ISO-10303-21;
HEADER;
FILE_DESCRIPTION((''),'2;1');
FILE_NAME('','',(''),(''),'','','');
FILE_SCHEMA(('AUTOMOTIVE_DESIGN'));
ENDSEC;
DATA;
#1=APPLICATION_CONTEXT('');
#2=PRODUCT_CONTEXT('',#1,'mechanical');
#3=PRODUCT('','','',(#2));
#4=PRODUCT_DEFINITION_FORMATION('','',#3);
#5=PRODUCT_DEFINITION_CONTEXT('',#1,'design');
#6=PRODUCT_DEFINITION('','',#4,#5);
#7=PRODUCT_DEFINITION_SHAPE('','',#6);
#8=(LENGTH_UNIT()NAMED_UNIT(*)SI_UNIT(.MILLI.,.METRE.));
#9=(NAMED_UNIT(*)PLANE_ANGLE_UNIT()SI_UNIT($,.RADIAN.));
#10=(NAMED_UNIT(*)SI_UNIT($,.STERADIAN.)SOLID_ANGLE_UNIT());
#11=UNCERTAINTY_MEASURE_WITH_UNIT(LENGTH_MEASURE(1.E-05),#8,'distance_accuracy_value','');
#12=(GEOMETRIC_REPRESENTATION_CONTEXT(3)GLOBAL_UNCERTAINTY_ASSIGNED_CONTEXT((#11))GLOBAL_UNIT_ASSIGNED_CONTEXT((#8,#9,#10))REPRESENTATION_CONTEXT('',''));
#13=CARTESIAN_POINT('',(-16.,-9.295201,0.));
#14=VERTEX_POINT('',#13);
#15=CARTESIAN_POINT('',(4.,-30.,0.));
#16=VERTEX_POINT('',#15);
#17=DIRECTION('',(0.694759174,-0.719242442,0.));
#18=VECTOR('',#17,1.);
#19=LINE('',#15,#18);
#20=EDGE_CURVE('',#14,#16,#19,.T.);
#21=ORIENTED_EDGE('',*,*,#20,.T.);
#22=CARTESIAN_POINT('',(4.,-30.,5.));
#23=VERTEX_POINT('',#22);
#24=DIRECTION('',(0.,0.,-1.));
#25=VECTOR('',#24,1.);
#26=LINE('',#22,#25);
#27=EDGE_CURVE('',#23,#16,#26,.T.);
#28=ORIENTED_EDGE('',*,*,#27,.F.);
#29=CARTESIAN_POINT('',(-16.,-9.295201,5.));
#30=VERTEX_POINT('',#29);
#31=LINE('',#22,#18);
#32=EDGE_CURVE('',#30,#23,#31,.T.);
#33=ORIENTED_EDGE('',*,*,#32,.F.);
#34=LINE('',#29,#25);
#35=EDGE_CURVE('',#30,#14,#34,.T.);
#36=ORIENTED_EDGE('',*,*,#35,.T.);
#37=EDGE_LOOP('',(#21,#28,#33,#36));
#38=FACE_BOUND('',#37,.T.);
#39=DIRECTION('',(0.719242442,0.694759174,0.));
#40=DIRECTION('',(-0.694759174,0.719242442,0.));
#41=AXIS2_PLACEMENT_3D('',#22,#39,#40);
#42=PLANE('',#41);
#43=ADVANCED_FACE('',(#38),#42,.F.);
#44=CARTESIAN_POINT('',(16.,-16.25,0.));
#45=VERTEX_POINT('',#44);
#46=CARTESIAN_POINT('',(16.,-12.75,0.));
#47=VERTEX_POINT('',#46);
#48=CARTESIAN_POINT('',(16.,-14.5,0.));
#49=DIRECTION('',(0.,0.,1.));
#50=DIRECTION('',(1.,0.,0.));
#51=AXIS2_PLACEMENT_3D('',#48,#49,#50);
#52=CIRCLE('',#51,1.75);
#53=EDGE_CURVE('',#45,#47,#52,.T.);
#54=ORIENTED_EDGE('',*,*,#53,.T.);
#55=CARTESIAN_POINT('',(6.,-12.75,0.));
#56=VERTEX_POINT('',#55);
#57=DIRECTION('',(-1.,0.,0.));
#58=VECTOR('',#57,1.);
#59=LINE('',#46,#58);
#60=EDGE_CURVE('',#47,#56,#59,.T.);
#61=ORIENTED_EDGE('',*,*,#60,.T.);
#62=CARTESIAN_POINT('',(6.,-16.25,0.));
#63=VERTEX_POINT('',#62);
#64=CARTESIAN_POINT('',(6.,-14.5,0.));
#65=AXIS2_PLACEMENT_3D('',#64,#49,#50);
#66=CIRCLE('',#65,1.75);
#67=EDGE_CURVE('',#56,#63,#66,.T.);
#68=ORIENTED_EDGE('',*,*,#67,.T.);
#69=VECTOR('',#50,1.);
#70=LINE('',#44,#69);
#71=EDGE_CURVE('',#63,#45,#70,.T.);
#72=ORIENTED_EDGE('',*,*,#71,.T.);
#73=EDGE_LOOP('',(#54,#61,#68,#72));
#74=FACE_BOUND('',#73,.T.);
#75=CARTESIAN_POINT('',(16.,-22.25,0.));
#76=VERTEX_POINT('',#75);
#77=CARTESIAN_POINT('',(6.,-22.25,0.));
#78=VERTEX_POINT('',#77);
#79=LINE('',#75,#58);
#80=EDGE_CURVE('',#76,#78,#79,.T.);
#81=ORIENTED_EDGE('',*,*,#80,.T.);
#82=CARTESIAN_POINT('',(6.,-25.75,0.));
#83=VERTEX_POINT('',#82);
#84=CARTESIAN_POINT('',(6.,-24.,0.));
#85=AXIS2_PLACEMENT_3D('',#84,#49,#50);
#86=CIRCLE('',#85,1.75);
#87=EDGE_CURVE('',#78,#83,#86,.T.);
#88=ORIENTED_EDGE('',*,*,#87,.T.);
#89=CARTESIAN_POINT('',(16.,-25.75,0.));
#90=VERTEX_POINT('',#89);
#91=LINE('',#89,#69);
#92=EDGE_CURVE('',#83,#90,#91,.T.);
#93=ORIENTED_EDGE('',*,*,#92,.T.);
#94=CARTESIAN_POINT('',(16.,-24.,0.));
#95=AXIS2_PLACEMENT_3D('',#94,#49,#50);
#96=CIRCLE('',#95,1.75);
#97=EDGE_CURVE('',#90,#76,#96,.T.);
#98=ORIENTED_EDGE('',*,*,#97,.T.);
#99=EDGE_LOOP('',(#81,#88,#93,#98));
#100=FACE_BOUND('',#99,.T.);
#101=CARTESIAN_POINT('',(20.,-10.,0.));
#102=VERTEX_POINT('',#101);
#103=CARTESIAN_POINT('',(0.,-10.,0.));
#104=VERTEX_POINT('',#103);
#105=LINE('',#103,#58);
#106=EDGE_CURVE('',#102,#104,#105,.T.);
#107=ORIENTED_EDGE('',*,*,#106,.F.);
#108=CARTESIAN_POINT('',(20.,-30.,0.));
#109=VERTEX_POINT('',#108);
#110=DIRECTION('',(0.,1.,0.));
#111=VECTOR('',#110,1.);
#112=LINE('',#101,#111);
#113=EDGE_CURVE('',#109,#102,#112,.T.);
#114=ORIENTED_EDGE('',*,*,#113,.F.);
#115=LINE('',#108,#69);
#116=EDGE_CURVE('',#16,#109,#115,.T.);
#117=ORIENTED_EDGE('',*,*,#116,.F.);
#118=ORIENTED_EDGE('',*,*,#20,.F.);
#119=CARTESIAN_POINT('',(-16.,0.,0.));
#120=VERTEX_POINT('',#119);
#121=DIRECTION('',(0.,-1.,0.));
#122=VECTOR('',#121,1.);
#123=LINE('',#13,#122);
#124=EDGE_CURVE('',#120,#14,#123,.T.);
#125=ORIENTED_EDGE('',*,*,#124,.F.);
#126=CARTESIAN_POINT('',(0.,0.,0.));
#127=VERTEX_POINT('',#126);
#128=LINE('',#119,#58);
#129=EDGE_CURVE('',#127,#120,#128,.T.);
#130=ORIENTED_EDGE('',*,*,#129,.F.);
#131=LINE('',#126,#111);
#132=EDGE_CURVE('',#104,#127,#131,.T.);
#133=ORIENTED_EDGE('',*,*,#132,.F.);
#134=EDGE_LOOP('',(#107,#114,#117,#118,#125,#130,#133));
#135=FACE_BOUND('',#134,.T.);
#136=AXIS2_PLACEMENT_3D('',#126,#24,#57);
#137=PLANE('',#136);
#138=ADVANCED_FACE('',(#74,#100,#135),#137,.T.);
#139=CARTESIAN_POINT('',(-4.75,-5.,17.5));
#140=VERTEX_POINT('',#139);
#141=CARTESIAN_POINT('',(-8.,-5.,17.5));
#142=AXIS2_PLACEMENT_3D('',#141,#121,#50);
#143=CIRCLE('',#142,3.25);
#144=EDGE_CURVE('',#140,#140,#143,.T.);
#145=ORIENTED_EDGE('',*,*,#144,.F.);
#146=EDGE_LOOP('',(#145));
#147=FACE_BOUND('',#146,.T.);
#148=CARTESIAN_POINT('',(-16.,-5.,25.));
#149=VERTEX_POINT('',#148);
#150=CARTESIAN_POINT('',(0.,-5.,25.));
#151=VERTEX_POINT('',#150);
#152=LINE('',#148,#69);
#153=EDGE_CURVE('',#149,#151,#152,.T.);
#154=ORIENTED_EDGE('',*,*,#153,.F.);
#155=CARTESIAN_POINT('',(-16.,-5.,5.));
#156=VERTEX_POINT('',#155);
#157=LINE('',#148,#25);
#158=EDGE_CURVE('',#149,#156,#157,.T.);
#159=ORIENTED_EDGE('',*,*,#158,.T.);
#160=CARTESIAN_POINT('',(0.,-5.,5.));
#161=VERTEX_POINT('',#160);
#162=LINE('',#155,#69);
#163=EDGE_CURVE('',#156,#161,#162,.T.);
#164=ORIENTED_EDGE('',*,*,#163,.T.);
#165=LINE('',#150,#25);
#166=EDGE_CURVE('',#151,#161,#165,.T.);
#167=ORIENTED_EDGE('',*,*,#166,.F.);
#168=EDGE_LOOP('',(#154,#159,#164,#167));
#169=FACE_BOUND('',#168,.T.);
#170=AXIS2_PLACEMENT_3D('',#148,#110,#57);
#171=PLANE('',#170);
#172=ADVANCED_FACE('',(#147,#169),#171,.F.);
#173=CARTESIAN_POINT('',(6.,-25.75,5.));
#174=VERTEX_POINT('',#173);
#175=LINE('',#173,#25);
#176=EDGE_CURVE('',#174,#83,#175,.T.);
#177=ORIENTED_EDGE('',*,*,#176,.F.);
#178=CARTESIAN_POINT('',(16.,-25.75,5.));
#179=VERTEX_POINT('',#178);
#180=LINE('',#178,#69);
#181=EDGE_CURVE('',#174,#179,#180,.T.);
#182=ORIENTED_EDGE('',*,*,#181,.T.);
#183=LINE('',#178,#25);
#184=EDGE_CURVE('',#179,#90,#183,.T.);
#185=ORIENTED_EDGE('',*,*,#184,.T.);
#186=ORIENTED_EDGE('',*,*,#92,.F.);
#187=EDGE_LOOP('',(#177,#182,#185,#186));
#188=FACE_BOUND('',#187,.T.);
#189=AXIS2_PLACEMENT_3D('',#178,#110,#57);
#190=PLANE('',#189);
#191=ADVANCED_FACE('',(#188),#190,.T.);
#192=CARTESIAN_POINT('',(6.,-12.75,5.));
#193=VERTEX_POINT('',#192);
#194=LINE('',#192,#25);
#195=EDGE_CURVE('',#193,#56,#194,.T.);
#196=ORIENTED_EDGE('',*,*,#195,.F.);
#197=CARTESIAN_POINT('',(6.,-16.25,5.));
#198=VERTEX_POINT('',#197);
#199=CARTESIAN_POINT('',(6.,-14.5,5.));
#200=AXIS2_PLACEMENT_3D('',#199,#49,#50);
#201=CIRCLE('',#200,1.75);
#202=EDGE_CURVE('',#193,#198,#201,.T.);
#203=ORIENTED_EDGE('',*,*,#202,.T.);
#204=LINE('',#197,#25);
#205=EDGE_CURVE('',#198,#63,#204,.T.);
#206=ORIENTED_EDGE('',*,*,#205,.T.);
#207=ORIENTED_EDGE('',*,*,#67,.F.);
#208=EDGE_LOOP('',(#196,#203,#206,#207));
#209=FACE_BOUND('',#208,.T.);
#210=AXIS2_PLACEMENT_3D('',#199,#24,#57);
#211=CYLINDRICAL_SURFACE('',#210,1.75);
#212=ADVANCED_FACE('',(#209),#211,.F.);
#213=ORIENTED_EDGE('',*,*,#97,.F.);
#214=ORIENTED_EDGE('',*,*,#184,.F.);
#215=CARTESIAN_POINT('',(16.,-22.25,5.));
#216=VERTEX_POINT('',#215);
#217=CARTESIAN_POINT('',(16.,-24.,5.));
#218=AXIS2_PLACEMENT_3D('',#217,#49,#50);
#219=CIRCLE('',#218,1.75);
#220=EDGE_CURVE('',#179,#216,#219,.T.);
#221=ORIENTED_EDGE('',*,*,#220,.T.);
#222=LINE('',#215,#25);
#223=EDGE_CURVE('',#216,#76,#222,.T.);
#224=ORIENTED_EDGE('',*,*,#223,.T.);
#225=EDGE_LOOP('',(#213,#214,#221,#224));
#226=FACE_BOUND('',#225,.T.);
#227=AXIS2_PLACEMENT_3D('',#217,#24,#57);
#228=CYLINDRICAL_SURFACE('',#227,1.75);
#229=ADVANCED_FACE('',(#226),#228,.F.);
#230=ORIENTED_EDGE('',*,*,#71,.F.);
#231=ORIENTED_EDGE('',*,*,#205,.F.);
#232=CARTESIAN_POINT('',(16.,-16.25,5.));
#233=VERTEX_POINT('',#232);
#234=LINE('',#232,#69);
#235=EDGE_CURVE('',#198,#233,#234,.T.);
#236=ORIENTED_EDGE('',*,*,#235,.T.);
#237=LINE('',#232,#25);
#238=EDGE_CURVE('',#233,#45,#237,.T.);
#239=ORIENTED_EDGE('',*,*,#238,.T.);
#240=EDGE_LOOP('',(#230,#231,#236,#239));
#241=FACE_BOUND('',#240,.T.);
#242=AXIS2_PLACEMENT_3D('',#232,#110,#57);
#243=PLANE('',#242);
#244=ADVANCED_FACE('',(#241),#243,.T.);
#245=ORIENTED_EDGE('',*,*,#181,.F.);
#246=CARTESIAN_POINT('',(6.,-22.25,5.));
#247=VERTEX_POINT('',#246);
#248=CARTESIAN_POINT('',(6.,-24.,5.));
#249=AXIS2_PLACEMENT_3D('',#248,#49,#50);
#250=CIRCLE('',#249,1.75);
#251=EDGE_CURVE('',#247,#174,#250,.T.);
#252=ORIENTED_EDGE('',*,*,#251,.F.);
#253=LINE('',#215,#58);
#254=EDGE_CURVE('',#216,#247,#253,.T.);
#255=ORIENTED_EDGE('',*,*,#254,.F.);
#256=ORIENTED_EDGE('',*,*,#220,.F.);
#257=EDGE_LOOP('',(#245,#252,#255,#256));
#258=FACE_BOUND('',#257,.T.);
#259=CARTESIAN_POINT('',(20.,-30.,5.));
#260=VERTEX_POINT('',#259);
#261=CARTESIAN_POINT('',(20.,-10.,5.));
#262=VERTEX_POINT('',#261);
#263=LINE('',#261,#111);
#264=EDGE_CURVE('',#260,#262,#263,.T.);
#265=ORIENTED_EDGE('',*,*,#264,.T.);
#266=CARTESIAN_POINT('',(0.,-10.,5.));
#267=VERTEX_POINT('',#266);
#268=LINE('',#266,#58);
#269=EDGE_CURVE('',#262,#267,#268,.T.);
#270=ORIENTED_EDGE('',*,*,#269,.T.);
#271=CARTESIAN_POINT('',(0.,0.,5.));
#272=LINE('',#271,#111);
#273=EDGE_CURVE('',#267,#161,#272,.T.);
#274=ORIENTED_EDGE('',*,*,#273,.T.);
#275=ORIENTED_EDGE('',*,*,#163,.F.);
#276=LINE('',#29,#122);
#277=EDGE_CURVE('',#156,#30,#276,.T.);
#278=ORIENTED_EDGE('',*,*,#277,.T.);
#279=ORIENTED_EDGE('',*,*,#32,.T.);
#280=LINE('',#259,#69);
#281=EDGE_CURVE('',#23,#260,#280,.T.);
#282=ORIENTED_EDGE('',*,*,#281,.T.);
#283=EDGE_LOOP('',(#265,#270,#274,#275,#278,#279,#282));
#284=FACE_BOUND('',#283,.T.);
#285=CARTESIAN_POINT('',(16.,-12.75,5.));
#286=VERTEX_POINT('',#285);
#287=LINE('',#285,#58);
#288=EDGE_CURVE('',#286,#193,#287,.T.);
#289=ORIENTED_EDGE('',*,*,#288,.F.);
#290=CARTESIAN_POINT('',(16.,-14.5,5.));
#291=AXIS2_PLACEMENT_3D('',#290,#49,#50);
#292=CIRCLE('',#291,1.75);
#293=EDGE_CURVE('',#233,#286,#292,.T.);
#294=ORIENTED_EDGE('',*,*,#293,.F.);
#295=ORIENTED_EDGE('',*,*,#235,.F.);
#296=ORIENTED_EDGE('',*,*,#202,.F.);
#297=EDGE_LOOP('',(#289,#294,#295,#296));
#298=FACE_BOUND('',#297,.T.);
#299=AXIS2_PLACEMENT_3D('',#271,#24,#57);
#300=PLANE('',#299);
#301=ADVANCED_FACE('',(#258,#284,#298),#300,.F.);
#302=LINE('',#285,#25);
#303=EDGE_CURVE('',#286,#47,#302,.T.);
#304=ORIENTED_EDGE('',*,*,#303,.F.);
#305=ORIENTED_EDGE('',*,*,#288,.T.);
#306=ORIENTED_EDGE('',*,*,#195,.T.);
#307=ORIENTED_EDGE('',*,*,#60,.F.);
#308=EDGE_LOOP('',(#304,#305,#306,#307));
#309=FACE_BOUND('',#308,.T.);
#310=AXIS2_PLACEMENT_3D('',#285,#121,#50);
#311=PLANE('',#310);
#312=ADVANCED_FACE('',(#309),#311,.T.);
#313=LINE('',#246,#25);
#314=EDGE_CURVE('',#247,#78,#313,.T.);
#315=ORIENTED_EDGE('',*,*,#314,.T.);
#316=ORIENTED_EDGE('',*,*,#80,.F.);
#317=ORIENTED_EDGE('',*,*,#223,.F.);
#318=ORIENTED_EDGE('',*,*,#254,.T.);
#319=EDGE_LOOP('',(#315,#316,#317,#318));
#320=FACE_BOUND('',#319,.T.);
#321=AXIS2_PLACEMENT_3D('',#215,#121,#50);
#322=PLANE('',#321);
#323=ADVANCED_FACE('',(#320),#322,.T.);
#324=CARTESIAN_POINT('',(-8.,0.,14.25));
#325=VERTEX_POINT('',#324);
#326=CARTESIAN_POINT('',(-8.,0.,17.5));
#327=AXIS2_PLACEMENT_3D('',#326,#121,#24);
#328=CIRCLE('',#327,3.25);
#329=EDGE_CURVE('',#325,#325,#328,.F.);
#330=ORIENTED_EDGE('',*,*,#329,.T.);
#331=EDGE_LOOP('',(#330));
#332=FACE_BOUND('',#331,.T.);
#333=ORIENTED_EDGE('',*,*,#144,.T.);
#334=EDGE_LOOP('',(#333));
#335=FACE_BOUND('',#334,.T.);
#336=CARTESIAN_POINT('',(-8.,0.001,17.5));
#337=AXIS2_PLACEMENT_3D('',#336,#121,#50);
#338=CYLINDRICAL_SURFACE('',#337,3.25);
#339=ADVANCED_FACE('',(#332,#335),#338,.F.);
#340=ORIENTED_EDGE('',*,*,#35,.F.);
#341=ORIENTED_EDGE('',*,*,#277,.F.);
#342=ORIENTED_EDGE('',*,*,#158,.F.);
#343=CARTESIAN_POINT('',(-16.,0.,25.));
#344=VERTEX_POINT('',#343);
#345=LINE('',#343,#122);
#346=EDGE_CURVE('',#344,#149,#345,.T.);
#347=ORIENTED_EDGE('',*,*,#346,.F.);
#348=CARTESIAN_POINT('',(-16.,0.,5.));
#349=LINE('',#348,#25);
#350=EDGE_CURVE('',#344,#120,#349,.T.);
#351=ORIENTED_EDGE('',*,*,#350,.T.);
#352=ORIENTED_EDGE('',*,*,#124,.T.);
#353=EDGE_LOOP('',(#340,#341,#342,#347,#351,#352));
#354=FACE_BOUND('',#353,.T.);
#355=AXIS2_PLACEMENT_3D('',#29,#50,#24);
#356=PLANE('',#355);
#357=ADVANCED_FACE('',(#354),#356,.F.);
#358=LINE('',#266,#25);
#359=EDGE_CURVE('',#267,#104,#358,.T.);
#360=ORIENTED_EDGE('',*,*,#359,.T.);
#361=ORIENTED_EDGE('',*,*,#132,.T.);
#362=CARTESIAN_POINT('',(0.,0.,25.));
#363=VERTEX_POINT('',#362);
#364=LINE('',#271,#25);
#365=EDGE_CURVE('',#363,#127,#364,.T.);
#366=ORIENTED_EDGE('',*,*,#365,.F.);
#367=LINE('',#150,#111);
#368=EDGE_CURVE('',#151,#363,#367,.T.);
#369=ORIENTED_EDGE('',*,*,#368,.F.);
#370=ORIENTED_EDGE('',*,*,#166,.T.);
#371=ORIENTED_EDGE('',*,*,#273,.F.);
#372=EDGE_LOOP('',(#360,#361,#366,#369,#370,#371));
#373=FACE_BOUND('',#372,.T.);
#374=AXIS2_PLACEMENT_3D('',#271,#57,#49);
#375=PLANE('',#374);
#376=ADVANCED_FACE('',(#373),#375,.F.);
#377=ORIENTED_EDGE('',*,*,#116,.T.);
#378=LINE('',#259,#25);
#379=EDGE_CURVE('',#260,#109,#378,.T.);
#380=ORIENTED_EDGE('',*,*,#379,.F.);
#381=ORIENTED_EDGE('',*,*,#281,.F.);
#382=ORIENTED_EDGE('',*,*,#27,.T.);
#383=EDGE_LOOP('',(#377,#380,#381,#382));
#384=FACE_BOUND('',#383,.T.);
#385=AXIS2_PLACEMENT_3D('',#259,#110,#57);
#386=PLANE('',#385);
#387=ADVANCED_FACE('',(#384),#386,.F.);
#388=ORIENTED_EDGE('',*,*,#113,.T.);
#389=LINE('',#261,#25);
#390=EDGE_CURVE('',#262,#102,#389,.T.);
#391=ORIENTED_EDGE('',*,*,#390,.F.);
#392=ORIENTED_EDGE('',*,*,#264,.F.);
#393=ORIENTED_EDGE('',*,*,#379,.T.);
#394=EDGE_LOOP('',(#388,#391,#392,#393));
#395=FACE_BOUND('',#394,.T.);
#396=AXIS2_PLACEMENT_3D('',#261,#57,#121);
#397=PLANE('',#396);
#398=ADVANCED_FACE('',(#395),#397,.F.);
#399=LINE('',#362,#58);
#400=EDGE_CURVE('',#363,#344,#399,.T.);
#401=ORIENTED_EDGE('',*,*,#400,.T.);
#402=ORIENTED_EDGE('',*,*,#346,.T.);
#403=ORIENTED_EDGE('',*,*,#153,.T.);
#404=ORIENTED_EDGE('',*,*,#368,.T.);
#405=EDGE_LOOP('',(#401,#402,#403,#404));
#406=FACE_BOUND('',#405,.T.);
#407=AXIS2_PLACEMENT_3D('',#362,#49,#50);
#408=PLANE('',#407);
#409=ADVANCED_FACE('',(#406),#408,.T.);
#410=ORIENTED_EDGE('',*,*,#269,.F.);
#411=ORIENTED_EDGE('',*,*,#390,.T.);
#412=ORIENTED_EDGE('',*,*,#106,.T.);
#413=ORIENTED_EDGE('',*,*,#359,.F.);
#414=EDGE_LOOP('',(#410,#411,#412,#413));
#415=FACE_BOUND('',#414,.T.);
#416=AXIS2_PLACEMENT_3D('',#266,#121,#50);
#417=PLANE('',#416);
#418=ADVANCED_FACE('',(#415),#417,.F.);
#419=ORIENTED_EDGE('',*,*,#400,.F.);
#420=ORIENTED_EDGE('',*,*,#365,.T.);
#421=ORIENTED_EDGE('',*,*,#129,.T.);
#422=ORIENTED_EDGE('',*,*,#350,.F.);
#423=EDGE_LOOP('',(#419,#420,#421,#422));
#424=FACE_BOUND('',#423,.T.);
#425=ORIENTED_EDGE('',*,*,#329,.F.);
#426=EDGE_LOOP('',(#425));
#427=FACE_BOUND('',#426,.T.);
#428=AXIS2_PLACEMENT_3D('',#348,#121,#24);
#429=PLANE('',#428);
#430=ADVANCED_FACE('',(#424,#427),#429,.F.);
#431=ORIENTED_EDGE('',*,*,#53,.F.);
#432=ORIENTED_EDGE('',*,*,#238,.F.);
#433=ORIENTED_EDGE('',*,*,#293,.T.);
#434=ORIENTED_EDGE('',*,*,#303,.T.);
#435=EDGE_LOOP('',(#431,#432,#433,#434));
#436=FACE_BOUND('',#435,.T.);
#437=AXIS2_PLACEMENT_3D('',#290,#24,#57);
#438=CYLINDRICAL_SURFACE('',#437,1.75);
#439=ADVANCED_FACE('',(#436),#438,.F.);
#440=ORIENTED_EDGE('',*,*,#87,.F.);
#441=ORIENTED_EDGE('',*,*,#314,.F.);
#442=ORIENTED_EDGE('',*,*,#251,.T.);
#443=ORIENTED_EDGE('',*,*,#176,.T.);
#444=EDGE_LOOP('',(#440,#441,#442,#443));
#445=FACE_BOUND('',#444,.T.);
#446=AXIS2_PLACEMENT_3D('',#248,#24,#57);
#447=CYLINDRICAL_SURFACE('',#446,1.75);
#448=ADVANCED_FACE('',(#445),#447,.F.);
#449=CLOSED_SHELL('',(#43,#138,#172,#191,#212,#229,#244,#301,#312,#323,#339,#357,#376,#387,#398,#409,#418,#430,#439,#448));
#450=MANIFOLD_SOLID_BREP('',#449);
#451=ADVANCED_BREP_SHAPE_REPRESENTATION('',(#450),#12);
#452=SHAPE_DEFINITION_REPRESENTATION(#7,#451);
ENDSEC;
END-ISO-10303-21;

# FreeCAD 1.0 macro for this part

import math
import FreeCAD as App
import Part
import Sketcher

V = App.Vector
Q = App.Units.Quantity


def add_polygon(sketch, points):
    """Adds a closed chain of lines whose ends are joined by coincident constraints."""
    first, n = sketch.GeometryCount, len(points)
    for a, b in zip(points, points[1:] + points[:1]):
        sketch.addGeometry(Part.LineSegment(App.Vector(*a, 0), App.Vector(*b, 0)), False)
    for i in range(n):
        sketch.addConstraint(Sketcher.Constraint("Coincident", first + i, 2, first + (i + 1) % n, 1))

doc = App.newDocument("Part")
body = doc.addObject("PartDesign::Body", "Body")

sketch1 = body.newObject("Sketcher::SketchObject", "Sketch")
sketch1.AttachmentSupport = (doc.getObject("XY_Plane"), [""])
sketch1.MapMode = "FlatFace"
add_polygon(sketch1, [(0, 0), (-16, 0), (-16, -9.3), (4, -30), (20, -30), (20, -10), (0, -10)])
sketch1.addGeometry(Part.ArcOfCircle(Part.Circle(V(16, -24, 0), V(0, 0, 1), 1.8), math.radians(-90), math.radians(90)), False)
sketch1.addGeometry(Part.LineSegment(V(16, -25.8, 0), V(6, -25.8, 0)), False)
sketch1.addGeometry(Part.ArcOfCircle(Part.Circle(V(6, -24, 0), V(0, 0, 1), 1.8), math.radians(90), math.radians(270)), False)
sketch1.addGeometry(Part.LineSegment(V(6, -22.2, 0), V(16, -22.2, 0)), False)
sketch1.addGeometry(Part.ArcOfCircle(Part.Circle(V(16, -14.5, 0), V(0, 0, 1), 1.8), math.radians(-90), math.radians(90)), False)
sketch1.addGeometry(Part.LineSegment(V(16, -16.2, 0), V(6, -16.2, 0)), False)
sketch1.addGeometry(Part.ArcOfCircle(Part.Circle(V(6, -14.5, 0), V(0, 0, 1), 1.8), math.radians(90), math.radians(270)), False)
sketch1.addGeometry(Part.LineSegment(V(6, -12.8, 0), V(16, -12.8, 0)), False)
sketch1.addConstraint(Sketcher.Constraint("Tangent", 7, 1, 8, 1))
sketch1.addConstraint(Sketcher.Constraint("Tangent", 8, 2, 9, 2))
sketch1.addConstraint(Sketcher.Constraint("Tangent", 9, 1, 10, 1))
sketch1.addConstraint(Sketcher.Constraint("Tangent", 10, 2, 7, 2))
sketch1.addConstraint(Sketcher.Constraint("Tangent", 11, 1, 12, 1))
sketch1.addConstraint(Sketcher.Constraint("Tangent", 12, 2, 13, 2))
sketch1.addConstraint(Sketcher.Constraint("Tangent", 13, 1, 14, 1))
sketch1.addConstraint(Sketcher.Constraint("Tangent", 14, 2, 11, 2))
sketch1.addConstraint(Sketcher.Constraint("Horizontal", 0))
sketch1.addConstraint(Sketcher.Constraint("Vertical", 1))
sketch1.addConstraint(Sketcher.Constraint("Horizontal", 3))
sketch1.addConstraint(Sketcher.Constraint("Vertical", 4))
sketch1.addConstraint(Sketcher.Constraint("Horizontal", 5))
sketch1.addConstraint(Sketcher.Constraint("Vertical", 6))
sketch1.addConstraint(Sketcher.Constraint("Horizontal", 8))
sketch1.addConstraint(Sketcher.Constraint("Horizontal", 10))
sketch1.addConstraint(Sketcher.Constraint("Horizontal", 12))
sketch1.addConstraint(Sketcher.Constraint("Horizontal", 14))
sketch1.addConstraint(Sketcher.Constraint("Coincident", 6, 2, -1, 1))
sketch1.addConstraint(Sketcher.Constraint("Equal", 9, 11))
sketch1.addConstraint(Sketcher.Constraint("Vertical", 7, 3, 11, 3))
sketch1.addConstraint(Sketcher.Constraint("Vertical", 9, 3, 13, 3))
sketch1.addConstraint(Sketcher.Constraint("Equal", 0, 3))
sketch1.addConstraint(Sketcher.Constraint("Equal", 5, 4))
sketch1.addConstraint(Sketcher.Constraint("Equal", 14, 6))
sketch1.addConstraint(Sketcher.Constraint("DistanceX", 0, 2, 0, 1, Q("16 mm")))
sketch1.addConstraint(Sketcher.Constraint("DistanceX", 5, 2, 5, 1, Q("20 mm")))
sketch1.addConstraint(Sketcher.Constraint("DistanceX", 8, 2, 8, 1, Q("10 mm")))
sketch1.addConstraint(Sketcher.Constraint("Radius", 7, Q("1.75 mm")))
sketch1.addConstraint(Sketcher.Constraint("DistanceX", -1, 1, 7, 3, Q("16 mm")))
sketch1.addConstraint(Sketcher.Constraint("DistanceY", 7, 3, -1, 1, Q("24 mm")))
sketch1.addConstraint(Sketcher.Constraint("DistanceY", 10, 2, 11, 1, Q("6 mm")))
sketch1.addConstraint(Sketcher.Constraint("DistanceY", 1, 2, 1, 1, Q("9.295201 mm")))
pad1 = body.newObject("PartDesign::Pad", "Pad")
pad1.Profile = sketch1
pad1.Length = 5

sketch2 = body.newObject("Sketcher::SketchObject", "Sketch001")
sketch2.AttachmentSupport = (doc.getObject("XY_Plane"), [""])
sketch2.MapMode = "FlatFace"
sketch2.AttachmentOffset = App.Placement(V(0, 0, 5), App.Rotation())
add_polygon(sketch2, [(-16, 0), (-16, -5), (0, -5), (0, 0)])
sketch2.addConstraint(Sketcher.Constraint("Vertical", 0))
sketch2.addConstraint(Sketcher.Constraint("Horizontal", 1))
sketch2.addConstraint(Sketcher.Constraint("Vertical", 2))
sketch2.addConstraint(Sketcher.Constraint("Horizontal", 3))
sketch2.addConstraint(Sketcher.Constraint("Coincident", 2, 2, -1, 1))
sketch2.addConstraint(Sketcher.Constraint("DistanceX", 1, 1, 1, 2, Q("16 mm")))
sketch2.addConstraint(Sketcher.Constraint("DistanceY", 0, 2, 0, 1, Q("5 mm")))
pad2 = body.newObject("PartDesign::Pad", "Pad001")
pad2.Profile = sketch2
pad2.Length = 20

sketch3 = body.newObject("Sketcher::SketchObject", "Sketch002")
sketch3.AttachmentSupport = (doc.getObject("XZ_Plane"), [""])
sketch3.MapMode = "FlatFace"
sketch3.AttachmentOffset = App.Placement(V(0, 0, 5), App.Rotation())
sketch3.addGeometry(Part.Circle(V(-8, 17.5, 0), V(0, 0, 1), 3.2), False)
sketch3.addConstraint(Sketcher.Constraint("Diameter", 0, Q("6.5 mm")))
sketch3.addConstraint(Sketcher.Constraint("DistanceX", 0, 3, -1, 1, Q("8 mm")))
sketch3.addConstraint(Sketcher.Constraint("DistanceY", -1, 1, 0, 3, Q("17.5 mm")))
pocket1 = body.newObject("PartDesign::Pocket", "Pocket")
pocket1.Profile = sketch3
pocket1.Type = "UpToFirst"

doc.recompute()
